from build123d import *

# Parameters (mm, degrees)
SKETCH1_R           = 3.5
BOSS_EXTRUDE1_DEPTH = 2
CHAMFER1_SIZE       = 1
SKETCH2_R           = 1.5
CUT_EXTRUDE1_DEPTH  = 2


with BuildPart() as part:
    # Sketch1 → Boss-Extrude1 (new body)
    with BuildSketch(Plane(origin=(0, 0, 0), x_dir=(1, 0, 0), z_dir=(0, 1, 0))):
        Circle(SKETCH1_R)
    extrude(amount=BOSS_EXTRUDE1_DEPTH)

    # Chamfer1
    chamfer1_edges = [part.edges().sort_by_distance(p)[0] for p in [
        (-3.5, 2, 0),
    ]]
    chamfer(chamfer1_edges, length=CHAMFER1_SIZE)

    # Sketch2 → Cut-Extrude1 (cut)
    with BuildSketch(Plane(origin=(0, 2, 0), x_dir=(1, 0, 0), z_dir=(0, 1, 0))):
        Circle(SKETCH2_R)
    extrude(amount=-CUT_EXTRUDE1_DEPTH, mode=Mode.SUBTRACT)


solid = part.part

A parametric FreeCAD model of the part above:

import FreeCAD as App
import Part
import Sketcher
Q = App.Units.Quantity


def edges_at(feature, points):
    """Names of the edges that pass closest to the given points."""
    edges = feature.Shape.Edges
    near = lambda p: min(range(len(edges)), key=lambda i: edges[i].distToShape(Part.Vertex(*p))[0])
    return sorted({f"Edge{near(p) + 1}" for p in points})

doc = App.newDocument("Part")
params = doc.addObject("Spreadsheet::Sheet", "Params")
for row, (alias, value) in enumerate([
    ("sketch1_diameter", "7 mm"),
    ("pad1_length", "2 mm"),
    ("chamfer_size", "1 mm"),
    ("sketch2_diameter", "3 mm"),
    ("pocket1_length", "2 mm"),
], start=1):
    params.set(f"A{row}", alias)
    params.set(f"B{row}", "=" + value)
    params.setAlias(f"B{row}", alias)

body = doc.addObject("PartDesign::Body", "Body")

# Sketch on XZ plane
sketch1 = doc.addObject("Sketcher::SketchObject", "Sketch")
body.addObject(sketch1)
sketch1.AttachmentSupport = (doc.XZ_Plane, [""])
sketch1.MapMode = "FlatFace"
sketch1.addGeometry(Part.Circle(App.Vector(0, 0, 0), App.Vector(0, 0, 1), 3.5), False)
sketch1.addConstraint(Sketcher.Constraint("Coincident", 0, 3, -1, 1))
sketch1.addConstraint(Sketcher.Constraint("Diameter", 0, Q("7 mm")))
sketch1.setExpression("Constraints[1]", "Params.sketch1_diameter")
pad1 = doc.addObject("PartDesign::Pad", "Pad")
body.addObject(pad1)
pad1.Profile = sketch1
pad1.setExpression("Length", "Params.pad1_length")
pad1.Reversed = True
doc.recompute()

chamfer = doc.addObject("PartDesign::Chamfer", "Chamfer")
body.addObject(chamfer)
chamfer.Base = (pad1, edges_at(pad1, [(-3.5, 2, 0)]))
chamfer.setExpression("Size", "Params.chamfer_size")

# Sketch on XZ plane
sketch2 = doc.addObject("Sketcher::SketchObject", "Sketch001")
body.addObject(sketch2)
sketch2.AttachmentSupport = (doc.XZ_Plane, [""])
sketch2.MapMode = "FlatFace"
sketch2.AttachmentOffset = App.Placement(App.Vector(0, 0, -2), App.Rotation())
sketch2.addGeometry(Part.Circle(App.Vector(0, 0, 0), App.Vector(0, 0, 1), 1.5), False)
sketch2.addConstraint(Sketcher.Constraint("Coincident", 0, 3, -1, 1))
sketch2.addConstraint(Sketcher.Constraint("Diameter", 0, Q("3 mm")))
sketch2.setExpression("Constraints[1]", "Params.sketch2_diameter")
pocket1 = doc.addObject("PartDesign::Pocket", "Pocket")
body.addObject(pocket1)
pocket1.Profile = sketch2
pocket1.setExpression("Length", "Params.pocket1_length")
pocket1.Reversed = True

doc.recompute()
